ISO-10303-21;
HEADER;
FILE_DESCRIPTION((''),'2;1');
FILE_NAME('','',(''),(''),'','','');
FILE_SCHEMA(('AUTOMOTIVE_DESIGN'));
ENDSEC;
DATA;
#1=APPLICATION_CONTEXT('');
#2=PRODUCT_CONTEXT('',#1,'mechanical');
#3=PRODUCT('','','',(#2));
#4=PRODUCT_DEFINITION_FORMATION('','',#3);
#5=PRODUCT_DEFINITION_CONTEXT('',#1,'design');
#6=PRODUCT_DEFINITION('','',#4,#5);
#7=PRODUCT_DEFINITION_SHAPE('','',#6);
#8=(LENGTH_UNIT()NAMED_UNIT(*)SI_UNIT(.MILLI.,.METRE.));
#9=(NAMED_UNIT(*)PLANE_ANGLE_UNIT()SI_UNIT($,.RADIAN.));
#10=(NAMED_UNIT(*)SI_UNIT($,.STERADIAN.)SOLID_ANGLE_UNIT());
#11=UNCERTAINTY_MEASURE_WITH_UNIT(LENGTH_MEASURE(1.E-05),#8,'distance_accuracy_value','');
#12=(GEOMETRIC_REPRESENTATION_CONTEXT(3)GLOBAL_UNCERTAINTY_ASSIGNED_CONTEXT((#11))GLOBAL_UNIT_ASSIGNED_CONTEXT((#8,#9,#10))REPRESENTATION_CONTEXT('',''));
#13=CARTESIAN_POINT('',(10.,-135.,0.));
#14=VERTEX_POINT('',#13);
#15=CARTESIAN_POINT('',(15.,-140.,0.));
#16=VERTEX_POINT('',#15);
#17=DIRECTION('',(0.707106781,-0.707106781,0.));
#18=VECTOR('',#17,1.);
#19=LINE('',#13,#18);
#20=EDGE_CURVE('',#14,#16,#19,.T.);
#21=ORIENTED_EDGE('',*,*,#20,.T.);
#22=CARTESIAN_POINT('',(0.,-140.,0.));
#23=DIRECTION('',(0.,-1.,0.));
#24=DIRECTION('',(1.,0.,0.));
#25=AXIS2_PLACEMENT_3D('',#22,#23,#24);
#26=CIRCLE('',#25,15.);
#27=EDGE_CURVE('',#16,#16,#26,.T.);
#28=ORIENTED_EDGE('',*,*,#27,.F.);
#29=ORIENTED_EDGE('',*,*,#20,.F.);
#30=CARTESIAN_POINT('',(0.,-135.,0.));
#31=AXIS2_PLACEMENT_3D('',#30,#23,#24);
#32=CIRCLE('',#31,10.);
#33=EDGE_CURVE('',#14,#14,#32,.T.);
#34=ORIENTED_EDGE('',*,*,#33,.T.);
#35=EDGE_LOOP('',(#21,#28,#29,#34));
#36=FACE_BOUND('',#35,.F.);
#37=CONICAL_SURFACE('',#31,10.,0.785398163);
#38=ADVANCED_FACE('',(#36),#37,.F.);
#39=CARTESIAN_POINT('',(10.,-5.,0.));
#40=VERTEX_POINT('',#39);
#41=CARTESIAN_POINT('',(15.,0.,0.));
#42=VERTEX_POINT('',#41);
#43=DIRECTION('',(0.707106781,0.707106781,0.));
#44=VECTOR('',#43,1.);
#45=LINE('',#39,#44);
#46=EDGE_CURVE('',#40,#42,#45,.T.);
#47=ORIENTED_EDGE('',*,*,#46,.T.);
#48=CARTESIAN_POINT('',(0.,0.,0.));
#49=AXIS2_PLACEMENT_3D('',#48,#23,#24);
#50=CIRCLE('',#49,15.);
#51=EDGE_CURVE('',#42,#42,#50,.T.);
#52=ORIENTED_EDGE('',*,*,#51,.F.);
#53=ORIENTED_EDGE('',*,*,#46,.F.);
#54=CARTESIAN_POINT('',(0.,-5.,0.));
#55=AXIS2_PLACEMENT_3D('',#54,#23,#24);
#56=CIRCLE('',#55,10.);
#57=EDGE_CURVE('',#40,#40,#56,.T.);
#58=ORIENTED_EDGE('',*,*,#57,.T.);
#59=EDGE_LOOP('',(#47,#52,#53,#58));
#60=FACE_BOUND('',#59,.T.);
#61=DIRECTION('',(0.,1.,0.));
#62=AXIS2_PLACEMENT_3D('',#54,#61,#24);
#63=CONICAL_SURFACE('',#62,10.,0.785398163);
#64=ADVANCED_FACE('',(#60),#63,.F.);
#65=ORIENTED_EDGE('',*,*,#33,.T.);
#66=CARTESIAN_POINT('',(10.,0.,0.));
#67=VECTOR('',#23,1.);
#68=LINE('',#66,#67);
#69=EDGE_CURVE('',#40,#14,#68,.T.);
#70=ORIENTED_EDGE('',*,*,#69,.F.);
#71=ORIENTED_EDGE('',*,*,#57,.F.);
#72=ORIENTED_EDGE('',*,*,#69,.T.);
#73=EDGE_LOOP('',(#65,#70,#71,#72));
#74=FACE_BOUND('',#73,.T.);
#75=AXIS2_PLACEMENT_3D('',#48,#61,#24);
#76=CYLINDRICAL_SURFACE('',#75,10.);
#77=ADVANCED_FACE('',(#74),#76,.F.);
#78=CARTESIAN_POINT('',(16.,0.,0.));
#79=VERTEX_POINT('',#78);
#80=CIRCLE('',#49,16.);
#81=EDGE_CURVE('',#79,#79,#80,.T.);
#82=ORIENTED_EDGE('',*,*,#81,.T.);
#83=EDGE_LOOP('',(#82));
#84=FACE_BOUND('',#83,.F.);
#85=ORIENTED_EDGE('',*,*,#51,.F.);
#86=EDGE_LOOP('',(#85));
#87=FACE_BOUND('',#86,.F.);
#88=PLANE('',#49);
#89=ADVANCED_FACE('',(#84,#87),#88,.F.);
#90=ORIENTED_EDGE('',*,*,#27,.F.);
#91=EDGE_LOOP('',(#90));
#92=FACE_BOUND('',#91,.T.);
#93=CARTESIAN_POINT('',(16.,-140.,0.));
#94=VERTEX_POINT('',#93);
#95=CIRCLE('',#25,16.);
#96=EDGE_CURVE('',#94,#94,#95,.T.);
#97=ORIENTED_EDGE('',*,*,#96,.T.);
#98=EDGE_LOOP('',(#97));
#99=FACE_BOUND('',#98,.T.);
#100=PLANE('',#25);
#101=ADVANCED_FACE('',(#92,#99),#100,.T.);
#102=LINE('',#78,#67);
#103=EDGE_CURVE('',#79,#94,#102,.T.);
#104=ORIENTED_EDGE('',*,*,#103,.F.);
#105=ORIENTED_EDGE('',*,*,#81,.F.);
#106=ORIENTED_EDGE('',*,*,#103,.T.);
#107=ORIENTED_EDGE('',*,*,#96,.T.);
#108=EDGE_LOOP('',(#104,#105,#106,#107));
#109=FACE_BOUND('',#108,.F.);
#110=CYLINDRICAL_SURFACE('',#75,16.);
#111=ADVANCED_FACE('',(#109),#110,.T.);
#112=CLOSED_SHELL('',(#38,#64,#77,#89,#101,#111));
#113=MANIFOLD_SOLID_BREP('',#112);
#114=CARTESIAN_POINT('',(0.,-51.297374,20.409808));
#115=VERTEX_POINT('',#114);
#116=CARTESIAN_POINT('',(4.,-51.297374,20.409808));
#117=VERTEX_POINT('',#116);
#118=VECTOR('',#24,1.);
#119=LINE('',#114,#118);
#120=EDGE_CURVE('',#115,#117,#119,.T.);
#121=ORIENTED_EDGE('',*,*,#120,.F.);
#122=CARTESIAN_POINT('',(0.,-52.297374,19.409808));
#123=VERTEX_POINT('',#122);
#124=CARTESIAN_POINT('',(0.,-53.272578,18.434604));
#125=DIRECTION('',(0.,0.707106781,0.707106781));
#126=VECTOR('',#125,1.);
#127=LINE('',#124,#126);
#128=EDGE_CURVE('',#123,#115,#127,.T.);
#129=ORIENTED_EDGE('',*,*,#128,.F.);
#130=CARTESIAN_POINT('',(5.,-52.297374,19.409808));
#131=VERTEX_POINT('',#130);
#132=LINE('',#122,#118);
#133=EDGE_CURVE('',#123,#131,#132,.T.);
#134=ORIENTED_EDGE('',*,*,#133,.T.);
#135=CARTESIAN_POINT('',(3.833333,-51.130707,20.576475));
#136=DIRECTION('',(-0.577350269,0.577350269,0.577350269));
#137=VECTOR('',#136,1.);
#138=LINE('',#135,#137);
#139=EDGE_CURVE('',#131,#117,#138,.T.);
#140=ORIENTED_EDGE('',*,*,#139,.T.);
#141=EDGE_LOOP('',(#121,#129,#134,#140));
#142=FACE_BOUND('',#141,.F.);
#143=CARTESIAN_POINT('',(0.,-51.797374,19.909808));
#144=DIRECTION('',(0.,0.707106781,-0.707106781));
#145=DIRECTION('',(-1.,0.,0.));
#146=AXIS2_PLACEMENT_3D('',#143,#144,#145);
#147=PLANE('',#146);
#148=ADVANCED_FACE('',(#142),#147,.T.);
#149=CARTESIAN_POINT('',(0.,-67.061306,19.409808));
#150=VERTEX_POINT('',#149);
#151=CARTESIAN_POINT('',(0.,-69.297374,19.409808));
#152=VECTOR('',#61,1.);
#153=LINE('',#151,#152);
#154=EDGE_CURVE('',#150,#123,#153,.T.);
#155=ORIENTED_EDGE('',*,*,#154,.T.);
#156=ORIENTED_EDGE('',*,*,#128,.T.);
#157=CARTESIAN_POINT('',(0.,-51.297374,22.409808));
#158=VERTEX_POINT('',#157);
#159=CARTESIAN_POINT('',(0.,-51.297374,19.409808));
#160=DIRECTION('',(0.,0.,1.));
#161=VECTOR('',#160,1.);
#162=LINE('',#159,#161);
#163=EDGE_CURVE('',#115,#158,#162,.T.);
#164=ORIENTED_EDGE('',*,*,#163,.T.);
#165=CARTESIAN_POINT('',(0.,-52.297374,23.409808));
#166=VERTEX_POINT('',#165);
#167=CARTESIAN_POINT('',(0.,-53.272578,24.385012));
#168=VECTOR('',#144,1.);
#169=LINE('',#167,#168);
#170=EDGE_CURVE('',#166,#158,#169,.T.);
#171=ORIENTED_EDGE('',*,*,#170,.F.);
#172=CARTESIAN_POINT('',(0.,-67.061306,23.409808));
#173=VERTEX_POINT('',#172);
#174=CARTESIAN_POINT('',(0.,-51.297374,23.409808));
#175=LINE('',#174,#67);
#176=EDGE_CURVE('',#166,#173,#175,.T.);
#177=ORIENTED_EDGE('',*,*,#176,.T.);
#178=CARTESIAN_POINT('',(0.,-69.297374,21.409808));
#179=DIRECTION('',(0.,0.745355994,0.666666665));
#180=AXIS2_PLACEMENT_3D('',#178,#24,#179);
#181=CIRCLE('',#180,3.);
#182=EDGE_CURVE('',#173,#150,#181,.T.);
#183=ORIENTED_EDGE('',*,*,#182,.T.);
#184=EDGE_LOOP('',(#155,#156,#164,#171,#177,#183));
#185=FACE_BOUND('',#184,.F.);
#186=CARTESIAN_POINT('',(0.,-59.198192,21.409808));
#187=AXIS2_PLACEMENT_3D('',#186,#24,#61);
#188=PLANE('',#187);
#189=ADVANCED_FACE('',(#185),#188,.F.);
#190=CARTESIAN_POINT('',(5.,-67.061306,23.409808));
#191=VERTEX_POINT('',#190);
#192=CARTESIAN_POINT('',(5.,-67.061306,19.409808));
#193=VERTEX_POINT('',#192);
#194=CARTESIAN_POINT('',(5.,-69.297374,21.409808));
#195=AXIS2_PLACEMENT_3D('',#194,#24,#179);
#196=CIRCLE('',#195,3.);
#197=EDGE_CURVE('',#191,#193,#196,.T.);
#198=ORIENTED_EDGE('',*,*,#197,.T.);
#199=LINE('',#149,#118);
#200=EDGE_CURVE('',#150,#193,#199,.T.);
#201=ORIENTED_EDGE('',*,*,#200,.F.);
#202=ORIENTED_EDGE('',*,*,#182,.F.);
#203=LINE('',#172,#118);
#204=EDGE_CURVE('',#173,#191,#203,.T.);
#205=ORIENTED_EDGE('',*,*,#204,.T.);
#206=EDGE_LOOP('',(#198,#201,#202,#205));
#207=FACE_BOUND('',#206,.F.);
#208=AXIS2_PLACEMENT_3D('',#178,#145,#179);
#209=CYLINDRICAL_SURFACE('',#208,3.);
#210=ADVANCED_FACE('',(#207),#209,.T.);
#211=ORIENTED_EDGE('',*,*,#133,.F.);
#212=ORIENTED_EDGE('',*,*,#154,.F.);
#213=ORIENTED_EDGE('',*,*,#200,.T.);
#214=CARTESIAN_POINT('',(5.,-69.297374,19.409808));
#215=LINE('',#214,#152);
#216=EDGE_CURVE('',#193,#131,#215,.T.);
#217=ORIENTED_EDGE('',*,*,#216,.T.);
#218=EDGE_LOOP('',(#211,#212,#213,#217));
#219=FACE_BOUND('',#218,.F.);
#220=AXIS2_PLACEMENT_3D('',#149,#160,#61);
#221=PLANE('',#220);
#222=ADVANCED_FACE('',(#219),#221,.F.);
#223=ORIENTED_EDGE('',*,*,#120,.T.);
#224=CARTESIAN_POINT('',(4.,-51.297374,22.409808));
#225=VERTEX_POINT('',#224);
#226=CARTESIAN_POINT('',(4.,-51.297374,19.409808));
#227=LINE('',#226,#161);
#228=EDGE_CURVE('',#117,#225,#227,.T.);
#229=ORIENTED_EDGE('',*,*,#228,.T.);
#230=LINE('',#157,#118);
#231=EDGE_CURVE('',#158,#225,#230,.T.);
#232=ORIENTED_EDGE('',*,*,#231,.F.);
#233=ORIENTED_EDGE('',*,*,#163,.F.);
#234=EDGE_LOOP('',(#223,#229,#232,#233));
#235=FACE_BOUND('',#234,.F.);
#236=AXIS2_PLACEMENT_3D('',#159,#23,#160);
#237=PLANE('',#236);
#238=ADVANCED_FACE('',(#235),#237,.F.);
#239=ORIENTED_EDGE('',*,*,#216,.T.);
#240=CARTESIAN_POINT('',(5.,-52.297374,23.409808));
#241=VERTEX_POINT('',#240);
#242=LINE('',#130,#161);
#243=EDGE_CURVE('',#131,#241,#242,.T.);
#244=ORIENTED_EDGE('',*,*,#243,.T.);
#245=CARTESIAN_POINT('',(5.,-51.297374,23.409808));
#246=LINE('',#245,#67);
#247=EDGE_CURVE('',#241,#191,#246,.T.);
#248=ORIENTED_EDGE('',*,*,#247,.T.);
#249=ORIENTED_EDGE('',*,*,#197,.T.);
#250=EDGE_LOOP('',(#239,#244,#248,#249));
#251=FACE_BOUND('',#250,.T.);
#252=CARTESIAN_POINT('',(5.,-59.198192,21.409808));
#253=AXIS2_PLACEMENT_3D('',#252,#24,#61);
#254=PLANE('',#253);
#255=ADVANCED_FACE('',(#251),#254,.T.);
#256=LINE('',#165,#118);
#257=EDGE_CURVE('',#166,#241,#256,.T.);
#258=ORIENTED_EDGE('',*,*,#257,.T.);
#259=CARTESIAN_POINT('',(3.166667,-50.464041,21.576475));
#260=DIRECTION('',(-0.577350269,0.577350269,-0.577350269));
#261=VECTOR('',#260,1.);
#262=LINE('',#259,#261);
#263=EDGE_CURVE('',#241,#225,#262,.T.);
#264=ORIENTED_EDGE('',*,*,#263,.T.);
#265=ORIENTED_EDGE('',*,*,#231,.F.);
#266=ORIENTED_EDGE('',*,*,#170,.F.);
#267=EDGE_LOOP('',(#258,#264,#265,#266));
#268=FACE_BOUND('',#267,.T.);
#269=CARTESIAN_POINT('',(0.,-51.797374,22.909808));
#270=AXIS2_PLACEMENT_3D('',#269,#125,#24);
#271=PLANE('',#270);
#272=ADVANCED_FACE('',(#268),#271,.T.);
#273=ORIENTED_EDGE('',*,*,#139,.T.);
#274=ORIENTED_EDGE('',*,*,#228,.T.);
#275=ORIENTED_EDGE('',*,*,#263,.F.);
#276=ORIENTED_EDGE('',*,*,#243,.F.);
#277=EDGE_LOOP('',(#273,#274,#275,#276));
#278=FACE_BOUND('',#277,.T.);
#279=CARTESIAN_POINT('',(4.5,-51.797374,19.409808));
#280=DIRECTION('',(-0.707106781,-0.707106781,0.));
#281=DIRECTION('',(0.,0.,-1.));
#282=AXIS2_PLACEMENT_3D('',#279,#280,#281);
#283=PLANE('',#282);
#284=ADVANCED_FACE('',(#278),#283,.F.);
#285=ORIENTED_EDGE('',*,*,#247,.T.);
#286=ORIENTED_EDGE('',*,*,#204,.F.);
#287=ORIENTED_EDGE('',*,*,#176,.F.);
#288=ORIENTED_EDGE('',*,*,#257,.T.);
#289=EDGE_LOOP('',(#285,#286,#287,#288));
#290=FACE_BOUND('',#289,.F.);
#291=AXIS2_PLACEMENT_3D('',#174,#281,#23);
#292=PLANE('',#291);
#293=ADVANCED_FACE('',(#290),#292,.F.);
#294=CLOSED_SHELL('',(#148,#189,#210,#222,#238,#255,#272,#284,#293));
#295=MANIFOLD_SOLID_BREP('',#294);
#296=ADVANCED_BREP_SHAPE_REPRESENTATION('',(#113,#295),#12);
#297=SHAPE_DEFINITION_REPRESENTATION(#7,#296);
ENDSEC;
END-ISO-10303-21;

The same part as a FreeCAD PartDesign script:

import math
import FreeCAD as App
import Part
import Sketcher
Q = App.Units.Quantity


def edges_at(feature, points):
    """Names of the edges that pass closest to the given points."""
    edges = feature.Shape.Edges
    near = lambda p: min(range(len(edges)), key=lambda i: edges[i].distToShape(Part.Vertex(*p))[0])
    return sorted({f"Edge{near(p) + 1}" for p in points})

doc = App.newDocument("Part")
body = doc.addObject("PartDesign::Body", "Body")

sketch1 = body.newObject("Sketcher::SketchObject", "Sketch")
sketch1.AttachmentSupport = (doc.getObject("XZ_Plane"), [""])
sketch1.MapMode = "FlatFace"
sketch1.addGeometry(Part.Circle(App.Vector(0, 0, 0), App.Vector(0, 0, 1), 16), False)
sketch1.addGeometry(Part.Circle(App.Vector(0, 0, 0), App.Vector(0, 0, 1), 10), False)
sketch1.addConstraint(Sketcher.Constraint("Coincident", 0, 3, -1, 1))
sketch1.addConstraint(Sketcher.Constraint("Coincident", 1, 3, -1, 1))
sketch1.addConstraint(Sketcher.Constraint("Diameter", 0, Q("32 mm")))
sketch1.addConstraint(Sketcher.Constraint("Diameter", 1, Q("20 mm")))
pad1 = body.newObject("PartDesign::Pad", "Pad")
pad1.Profile = sketch1
pad1.Length = 140
doc.recompute()

chamfer = body.newObject("PartDesign::Chamfer", "Chamfer")
chamfer.Base = (pad1, edges_at(pad1, [(-10, -140, 0), (-10, 0, 0)]))
chamfer.Size = 5
body2 = doc.addObject("PartDesign::Body", "Body001")

sketch2 = body2.newObject("Sketcher::SketchObject", "Sketch001")
sketch2.AttachmentSupport = (doc.getObject("YZ_Plane001"), [""])
sketch2.MapMode = "FlatFace"
sketch2.addGeometry(Part.LineSegment(App.Vector(-51.3, 23.4, 0), App.Vector(-67.1, 23.4, 0)), False)
sketch2.addGeometry(Part.ArcOfCircle(Part.Circle(App.Vector(-69.3, 21.4, 0), App.Vector(0, 0, 1), 3), math.radians(42), math.radians(318)), False)
sketch2.addGeometry(Part.LineSegment(App.Vector(-67.1, 19.4, 0), App.Vector(-51.3, 19.4, 0)), False)
sketch2.addGeometry(Part.LineSegment(App.Vector(-51.3, 19.4, 0), App.Vector(-51.3, 23.4, 0)), False)
sketch2.addConstraint(Sketcher.Constraint("Coincident", 0, 2, 1, 1))
sketch2.addConstraint(Sketcher.Constraint("Coincident", 1, 2, 2, 1))
sketch2.addConstraint(Sketcher.Constraint("Coincident", 2, 2, 3, 1))
sketch2.addConstraint(Sketcher.Constraint("Coincident", 3, 2, 0, 1))
sketch2.addConstraint(Sketcher.Constraint("Horizontal", 0))
sketch2.addConstraint(Sketcher.Constraint("Horizontal", 2))
sketch2.addConstraint(Sketcher.Constraint("Vertical", 3))
sketch2.addConstraint(Sketcher.Constraint("Vertical", 0, 2, 1, 2))
sketch2.addConstraint(Sketcher.Constraint("Radius", 1, Q("3 mm")))
sketch2.addConstraint(Sketcher.Constraint("DistanceY", 3, 1, 3, 2, Q("4 mm")))
sketch2.addConstraint(Sketcher.Constraint("DistanceX", 1, 3, 2, 2, Q("18 mm")))
sketch2.addConstraint(Sketcher.Constraint("DistanceY", -1, 1, 1, 3, Q("21.409808 mm")))
sketch2.addConstraint(Sketcher.Constraint("DistanceX", 1, 3, -1, 1, Q("69.297374 mm")))
pad2 = body2.newObject("PartDesign::Pad", "Pad001")
pad2.Profile = sketch2
pad2.Length = 5
doc.recompute()

chamfer2 = body2.newObject("PartDesign::Chamfer", "Chamfer001")
chamfer2.Base = (pad2, edges_at(pad2, [(2.5, -51.297, 23.41), (2.5, -51.297, 19.41), (5, -51.297, 21.41)]))
chamfer2.Size = 1

doc.recompute()
